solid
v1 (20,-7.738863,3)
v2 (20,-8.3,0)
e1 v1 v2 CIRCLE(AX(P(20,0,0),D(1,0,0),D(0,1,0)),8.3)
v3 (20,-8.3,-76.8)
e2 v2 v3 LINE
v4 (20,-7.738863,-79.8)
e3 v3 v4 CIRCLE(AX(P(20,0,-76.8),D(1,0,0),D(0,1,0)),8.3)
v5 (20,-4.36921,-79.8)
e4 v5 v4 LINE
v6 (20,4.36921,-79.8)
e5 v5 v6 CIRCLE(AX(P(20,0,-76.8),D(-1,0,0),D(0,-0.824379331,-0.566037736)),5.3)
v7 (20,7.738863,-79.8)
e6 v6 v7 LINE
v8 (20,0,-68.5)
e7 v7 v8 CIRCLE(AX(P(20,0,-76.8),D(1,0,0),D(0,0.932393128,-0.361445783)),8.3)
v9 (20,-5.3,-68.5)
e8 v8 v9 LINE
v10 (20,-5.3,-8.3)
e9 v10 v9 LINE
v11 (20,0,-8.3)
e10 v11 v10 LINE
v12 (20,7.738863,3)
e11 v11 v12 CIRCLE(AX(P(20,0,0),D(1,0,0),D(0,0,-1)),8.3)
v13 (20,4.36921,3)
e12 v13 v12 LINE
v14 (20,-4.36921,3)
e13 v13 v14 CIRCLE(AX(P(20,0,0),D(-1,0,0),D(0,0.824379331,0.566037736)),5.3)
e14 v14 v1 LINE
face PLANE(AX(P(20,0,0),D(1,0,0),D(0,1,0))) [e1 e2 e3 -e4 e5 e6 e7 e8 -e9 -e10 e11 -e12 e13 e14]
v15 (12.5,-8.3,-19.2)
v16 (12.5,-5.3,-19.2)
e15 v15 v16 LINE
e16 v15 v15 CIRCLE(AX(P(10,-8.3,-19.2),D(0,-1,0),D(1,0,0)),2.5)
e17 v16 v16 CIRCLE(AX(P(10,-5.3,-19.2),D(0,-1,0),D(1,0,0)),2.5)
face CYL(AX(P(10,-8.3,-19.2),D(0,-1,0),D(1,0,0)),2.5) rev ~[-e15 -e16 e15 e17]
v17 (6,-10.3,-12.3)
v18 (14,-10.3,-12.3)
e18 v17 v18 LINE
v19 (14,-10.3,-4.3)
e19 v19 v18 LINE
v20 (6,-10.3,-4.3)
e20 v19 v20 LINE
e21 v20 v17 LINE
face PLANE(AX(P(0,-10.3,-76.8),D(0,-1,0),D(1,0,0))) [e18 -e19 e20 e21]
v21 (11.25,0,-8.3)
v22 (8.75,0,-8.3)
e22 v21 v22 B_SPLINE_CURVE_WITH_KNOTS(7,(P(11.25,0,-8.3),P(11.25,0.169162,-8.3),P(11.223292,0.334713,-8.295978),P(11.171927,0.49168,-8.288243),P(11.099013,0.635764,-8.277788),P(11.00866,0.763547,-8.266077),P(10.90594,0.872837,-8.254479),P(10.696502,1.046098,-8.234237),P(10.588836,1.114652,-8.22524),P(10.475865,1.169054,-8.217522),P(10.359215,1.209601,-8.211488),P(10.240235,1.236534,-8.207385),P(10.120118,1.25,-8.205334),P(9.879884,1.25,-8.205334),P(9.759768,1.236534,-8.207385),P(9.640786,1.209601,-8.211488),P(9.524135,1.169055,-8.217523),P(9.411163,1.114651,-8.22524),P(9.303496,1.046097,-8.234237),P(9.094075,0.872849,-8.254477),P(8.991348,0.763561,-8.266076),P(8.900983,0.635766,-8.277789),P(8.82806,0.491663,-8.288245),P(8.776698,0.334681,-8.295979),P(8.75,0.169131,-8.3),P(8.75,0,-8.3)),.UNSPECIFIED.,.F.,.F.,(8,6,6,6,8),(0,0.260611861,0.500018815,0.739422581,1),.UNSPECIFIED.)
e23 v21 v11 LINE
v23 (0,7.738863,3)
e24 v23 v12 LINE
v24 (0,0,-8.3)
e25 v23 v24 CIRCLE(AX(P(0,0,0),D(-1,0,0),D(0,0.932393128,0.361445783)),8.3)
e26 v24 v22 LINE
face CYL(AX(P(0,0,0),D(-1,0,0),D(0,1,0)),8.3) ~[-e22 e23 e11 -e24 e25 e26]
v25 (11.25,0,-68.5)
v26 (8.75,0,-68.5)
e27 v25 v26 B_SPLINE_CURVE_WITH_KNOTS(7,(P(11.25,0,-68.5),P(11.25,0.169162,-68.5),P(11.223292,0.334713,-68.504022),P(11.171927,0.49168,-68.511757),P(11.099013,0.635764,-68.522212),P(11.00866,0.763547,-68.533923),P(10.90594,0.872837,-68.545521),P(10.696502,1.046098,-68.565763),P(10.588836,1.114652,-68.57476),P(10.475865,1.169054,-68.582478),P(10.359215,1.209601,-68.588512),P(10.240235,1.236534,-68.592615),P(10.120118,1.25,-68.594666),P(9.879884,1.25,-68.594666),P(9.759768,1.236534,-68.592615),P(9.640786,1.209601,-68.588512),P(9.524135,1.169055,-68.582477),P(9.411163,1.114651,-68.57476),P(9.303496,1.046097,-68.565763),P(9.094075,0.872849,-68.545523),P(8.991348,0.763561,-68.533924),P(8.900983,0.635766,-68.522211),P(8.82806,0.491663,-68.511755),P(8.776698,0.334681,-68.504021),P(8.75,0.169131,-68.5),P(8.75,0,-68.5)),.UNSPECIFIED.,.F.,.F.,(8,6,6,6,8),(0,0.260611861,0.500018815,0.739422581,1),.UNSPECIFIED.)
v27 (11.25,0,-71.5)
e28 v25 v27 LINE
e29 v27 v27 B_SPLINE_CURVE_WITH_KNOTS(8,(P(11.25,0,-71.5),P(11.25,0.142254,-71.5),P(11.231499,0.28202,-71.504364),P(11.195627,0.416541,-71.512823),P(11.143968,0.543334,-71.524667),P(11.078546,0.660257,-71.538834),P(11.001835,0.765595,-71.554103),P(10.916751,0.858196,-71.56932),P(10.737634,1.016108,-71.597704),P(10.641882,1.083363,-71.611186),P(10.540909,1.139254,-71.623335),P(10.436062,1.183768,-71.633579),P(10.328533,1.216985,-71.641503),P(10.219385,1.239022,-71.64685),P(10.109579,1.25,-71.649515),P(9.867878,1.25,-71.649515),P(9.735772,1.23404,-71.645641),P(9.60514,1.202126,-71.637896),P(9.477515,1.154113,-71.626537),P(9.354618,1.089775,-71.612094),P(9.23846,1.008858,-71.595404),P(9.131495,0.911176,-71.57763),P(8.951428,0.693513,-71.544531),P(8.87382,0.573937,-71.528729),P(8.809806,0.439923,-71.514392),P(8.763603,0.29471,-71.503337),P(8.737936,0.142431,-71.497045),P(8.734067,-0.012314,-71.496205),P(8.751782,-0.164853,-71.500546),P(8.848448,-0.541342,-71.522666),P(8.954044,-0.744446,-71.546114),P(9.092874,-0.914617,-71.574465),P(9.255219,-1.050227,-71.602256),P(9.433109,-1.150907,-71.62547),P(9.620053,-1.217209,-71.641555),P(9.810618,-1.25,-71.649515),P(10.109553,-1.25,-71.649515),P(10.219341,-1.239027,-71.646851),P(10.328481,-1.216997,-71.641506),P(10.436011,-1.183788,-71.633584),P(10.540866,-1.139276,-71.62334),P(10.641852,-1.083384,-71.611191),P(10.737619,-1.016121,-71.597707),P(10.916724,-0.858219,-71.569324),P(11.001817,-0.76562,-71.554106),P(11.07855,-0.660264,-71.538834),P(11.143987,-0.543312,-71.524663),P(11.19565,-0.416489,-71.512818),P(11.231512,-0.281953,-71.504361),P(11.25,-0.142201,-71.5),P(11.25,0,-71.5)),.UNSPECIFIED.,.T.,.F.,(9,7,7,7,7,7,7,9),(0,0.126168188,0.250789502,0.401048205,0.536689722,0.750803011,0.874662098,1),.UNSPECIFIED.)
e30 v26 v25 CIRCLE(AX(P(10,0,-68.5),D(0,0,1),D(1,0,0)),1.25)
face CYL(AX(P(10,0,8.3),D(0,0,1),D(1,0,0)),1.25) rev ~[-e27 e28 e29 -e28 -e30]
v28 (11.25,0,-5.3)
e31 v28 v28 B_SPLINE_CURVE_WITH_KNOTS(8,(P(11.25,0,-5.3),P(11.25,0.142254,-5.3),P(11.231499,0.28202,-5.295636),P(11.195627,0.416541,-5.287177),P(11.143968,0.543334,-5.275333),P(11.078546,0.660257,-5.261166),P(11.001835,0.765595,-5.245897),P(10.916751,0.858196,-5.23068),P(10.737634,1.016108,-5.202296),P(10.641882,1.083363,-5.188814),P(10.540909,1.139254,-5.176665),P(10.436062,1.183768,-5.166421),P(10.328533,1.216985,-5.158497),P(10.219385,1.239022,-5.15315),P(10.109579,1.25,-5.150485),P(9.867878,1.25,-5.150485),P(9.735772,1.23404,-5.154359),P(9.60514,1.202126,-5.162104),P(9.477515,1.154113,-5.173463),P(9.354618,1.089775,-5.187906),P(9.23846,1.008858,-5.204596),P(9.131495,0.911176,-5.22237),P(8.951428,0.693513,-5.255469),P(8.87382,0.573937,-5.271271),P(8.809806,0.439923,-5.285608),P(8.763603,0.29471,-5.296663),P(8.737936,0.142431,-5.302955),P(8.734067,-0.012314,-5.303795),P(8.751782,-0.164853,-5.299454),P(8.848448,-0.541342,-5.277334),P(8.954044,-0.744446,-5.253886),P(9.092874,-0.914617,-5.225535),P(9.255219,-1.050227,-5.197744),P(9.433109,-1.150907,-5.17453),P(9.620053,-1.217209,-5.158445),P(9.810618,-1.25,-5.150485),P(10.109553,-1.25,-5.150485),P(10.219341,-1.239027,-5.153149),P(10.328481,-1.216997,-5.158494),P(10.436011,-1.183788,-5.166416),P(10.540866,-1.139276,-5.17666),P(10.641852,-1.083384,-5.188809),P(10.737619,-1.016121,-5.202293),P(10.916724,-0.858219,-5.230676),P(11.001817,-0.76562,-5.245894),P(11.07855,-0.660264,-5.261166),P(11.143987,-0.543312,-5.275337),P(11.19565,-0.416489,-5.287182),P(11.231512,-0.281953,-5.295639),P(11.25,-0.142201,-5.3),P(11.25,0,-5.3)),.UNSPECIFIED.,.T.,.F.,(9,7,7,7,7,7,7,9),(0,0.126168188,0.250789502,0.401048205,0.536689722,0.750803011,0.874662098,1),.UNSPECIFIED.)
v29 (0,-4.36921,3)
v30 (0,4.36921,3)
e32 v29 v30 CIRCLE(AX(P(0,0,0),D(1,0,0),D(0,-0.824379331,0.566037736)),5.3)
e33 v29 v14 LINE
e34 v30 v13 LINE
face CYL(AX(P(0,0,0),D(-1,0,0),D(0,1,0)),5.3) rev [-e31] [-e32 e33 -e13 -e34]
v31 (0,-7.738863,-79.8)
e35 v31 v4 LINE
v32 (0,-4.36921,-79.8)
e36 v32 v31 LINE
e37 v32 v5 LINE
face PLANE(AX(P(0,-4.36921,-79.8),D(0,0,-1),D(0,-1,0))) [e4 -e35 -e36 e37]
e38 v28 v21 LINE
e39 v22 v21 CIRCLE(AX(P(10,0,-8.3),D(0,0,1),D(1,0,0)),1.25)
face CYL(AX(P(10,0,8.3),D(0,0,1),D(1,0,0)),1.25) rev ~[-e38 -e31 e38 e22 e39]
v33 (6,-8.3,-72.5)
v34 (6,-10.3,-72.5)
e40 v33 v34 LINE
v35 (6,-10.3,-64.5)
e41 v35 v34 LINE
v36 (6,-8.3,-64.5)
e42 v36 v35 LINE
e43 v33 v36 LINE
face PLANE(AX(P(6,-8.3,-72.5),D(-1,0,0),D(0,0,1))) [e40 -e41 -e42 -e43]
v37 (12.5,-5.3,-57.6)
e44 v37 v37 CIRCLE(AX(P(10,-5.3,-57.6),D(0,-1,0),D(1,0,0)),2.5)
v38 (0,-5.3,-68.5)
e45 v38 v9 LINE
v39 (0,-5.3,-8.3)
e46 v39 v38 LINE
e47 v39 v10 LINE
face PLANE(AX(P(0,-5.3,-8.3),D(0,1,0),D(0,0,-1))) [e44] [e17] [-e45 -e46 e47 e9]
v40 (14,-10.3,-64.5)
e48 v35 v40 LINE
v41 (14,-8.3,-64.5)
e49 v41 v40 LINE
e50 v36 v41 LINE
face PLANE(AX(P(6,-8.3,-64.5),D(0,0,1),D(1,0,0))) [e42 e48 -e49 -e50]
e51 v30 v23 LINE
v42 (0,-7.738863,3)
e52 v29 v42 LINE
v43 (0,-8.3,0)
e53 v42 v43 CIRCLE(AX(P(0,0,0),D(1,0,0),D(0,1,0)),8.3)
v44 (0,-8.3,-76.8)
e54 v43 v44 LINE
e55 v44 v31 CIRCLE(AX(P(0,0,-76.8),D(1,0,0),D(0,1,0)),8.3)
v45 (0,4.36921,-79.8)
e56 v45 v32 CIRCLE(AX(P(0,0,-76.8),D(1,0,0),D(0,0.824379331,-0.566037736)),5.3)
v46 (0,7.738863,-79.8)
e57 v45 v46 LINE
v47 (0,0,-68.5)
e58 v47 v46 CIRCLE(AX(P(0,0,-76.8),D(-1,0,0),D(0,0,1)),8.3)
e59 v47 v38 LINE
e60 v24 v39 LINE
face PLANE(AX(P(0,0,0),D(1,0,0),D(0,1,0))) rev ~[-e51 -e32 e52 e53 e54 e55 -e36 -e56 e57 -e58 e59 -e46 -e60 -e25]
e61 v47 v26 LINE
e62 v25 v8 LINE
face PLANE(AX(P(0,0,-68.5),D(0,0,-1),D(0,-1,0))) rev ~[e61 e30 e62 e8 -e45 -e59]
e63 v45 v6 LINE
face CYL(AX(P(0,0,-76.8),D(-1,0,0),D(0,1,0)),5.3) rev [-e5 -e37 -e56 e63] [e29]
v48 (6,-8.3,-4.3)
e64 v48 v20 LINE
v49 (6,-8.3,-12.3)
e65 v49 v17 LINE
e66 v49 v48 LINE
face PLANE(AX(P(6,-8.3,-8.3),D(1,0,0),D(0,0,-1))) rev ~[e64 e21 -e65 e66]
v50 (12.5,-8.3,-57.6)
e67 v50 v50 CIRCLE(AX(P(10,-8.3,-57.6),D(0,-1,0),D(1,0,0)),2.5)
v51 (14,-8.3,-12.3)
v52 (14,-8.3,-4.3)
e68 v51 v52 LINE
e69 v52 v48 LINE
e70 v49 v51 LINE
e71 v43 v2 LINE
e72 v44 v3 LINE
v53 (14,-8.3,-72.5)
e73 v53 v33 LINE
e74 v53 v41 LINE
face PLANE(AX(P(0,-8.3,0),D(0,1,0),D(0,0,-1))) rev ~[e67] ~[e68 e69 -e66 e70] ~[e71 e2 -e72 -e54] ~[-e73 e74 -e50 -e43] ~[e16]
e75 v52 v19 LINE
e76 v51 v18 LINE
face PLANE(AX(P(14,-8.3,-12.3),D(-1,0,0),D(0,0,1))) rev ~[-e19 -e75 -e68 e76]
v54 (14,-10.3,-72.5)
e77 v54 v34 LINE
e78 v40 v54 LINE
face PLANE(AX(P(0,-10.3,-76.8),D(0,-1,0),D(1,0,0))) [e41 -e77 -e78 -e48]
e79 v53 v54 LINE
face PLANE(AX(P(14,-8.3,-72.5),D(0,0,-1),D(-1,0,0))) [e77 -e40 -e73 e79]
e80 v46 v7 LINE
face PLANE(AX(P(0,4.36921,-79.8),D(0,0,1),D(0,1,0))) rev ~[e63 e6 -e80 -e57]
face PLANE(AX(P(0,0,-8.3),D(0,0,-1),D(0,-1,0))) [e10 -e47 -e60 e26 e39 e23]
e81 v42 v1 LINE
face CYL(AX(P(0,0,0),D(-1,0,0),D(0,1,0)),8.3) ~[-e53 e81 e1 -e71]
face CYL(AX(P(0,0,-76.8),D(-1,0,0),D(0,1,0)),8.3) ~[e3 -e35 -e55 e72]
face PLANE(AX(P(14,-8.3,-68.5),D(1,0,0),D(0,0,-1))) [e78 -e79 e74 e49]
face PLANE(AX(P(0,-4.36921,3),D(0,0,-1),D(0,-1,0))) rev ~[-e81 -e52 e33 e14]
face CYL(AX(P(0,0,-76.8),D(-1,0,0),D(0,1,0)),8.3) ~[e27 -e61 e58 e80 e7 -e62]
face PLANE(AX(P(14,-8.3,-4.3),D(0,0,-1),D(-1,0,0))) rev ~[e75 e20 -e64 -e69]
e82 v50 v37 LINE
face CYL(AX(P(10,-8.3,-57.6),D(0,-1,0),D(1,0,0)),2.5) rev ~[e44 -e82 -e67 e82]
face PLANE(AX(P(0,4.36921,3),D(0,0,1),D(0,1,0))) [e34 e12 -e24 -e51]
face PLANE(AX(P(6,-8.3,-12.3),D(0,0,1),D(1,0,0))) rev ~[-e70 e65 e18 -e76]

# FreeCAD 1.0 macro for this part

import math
import FreeCAD as App
import Part
import Sketcher
from FreeCAD import Vector
Q = App.Units.Quantity

doc = App.newDocument("Part")
body = doc.addObject("PartDesign::Body", "Body")

# Sketch on YZ plane
sketch1 = body.newObject("Sketcher::SketchObject", "Sketch")
sketch1.AttachmentSupport = (doc.getObject("YZ_Plane"), [""])
sketch1.MapMode = "FlatFace"
sketch1.addGeometry(Part.ArcOfCircle(Part.Circle(Vector(0, 0, 0), Vector(0, 0, 1), 8.3), math.radians(159), math.radians(180)), False)
sketch1.addGeometry(Part.LineSegment(Vector(-8.3, 0, 0), Vector(-8.3, -76.8, 0)), False)
sketch1.addGeometry(Part.ArcOfCircle(Part.Circle(Vector(0, -76.8, 0), Vector(0, 0, 1), 8.3), math.radians(180), math.radians(201)), False)
sketch1.addGeometry(Part.LineSegment(Vector(-7.7, -79.8, 0), Vector(-4.4, -79.8, 0)), False)
sketch1.addGeometry(Part.ArcOfCircle(Part.Circle(Vector(0, -76.8, 0), Vector(0, 0, 1), 5.3), math.radians(-34), math.radians(214)), False)
sketch1.addGeometry(Part.LineSegment(Vector(4.4, -79.8, 0), Vector(7.7, -79.8, 0)), False)
sketch1.addGeometry(Part.ArcOfCircle(Part.Circle(Vector(0, -76.8, 0), Vector(0, 0, 1), 8.3), math.radians(-21), math.radians(90)), False)
sketch1.addGeometry(Part.LineSegment(Vector(0, -68.5, 0), Vector(-5.3, -68.5, 0)), False)
sketch1.addGeometry(Part.LineSegment(Vector(-5.3, -68.5, 0), Vector(-5.3, -8.3, 0)), False)
sketch1.addGeometry(Part.LineSegment(Vector(-5.3, -8.3, 0), Vector(0, -8.3, 0)), False)
sketch1.addGeometry(Part.ArcOfCircle(Part.Circle(Vector(0, 0, 0), Vector(0, 0, 1), 8.3), math.radians(-90), math.radians(21)), False)
sketch1.addGeometry(Part.LineSegment(Vector(7.7, 3, 0), Vector(4.4, 3, 0)), False)
sketch1.addGeometry(Part.ArcOfCircle(Part.Circle(Vector(0, 0, 0), Vector(0, 0, 1), 5.3), math.radians(146), math.radians(394)), False)
sketch1.addGeometry(Part.LineSegment(Vector(-4.4, 3, 0), Vector(-7.7, 3, 0)), False)
sketch1.addConstraint(Sketcher.Constraint("Tangent", 0, 2, 1, 1))
sketch1.addConstraint(Sketcher.Constraint("Tangent", 1, 2, 2, 1))
sketch1.addConstraint(Sketcher.Constraint("Coincident", 2, 2, 3, 1))
sketch1.addConstraint(Sketcher.Constraint("Coincident", 3, 2, 4, 2))
sketch1.addConstraint(Sketcher.Constraint("Coincident", 4, 1, 5, 1))
sketch1.addConstraint(Sketcher.Constraint("Coincident", 5, 2, 6, 1))
sketch1.addConstraint(Sketcher.Constraint("Tangent", 6, 2, 7, 1))
sketch1.addConstraint(Sketcher.Constraint("Coincident", 7, 2, 8, 1))
sketch1.addConstraint(Sketcher.Constraint("Coincident", 8, 2, 9, 1))
sketch1.addConstraint(Sketcher.Constraint("Tangent", 9, 2, 10, 1))
sketch1.addConstraint(Sketcher.Constraint("Coincident", 10, 2, 11, 1))
sketch1.addConstraint(Sketcher.Constraint("Coincident", 11, 2, 12, 2))
sketch1.addConstraint(Sketcher.Constraint("Coincident", 12, 1, 13, 1))
sketch1.addConstraint(Sketcher.Constraint("Coincident", 13, 2, 0, 1))
sketch1.addConstraint(Sketcher.Constraint("Vertical", 1))
sketch1.addConstraint(Sketcher.Constraint("Horizontal", 3))
sketch1.addConstraint(Sketcher.Constraint("Horizontal", 5))
sketch1.addConstraint(Sketcher.Constraint("Horizontal", 7))
sketch1.addConstraint(Sketcher.Constraint("Vertical", 8))
sketch1.addConstraint(Sketcher.Constraint("Horizontal", 9))
sketch1.addConstraint(Sketcher.Constraint("Horizontal", 11))
sketch1.addConstraint(Sketcher.Constraint("Horizontal", 13))
sketch1.addConstraint(Sketcher.Constraint("Coincident", 0, 3, -1, 1))
sketch1.addConstraint(Sketcher.Constraint("Coincident", 10, 3, -1, 1))
sketch1.addConstraint(Sketcher.Constraint("Coincident", 12, 3, -1, 1))
sketch1.addConstraint(Sketcher.Constraint("Coincident", 4, 3, 2, 3))
sketch1.addConstraint(Sketcher.Constraint("Coincident", 6, 3, 2, 3))
sketch1.addConstraint(Sketcher.Constraint("Equal", 0, 2))
sketch1.addConstraint(Sketcher.Constraint("Equal", 2, 6))
sketch1.addConstraint(Sketcher.Constraint("Equal", 6, 10))
sketch1.addConstraint(Sketcher.Constraint("Equal", 4, 12))
sketch1.addConstraint(Sketcher.Constraint("Horizontal", 3, 2, 4, 1))
sketch1.addConstraint(Sketcher.Constraint("Horizontal", 11, 2, 12, 1))
sketch1.addConstraint(Sketcher.Constraint("Vertical", 5, 2, 10, 2))
sketch1.addConstraint(Sketcher.Constraint("Radius", 0, Q("8.3 mm")))
sketch1.addConstraint(Sketcher.Constraint("Radius", 4, Q("5.3 mm")))
sketch1.addConstraint(Sketcher.Constraint("DistanceY", -1, 1, 10, 2, Q("3 mm")))
sketch1.addConstraint(Sketcher.Constraint("DistanceX", 1, 2, 7, 2, Q("3 mm")))
sketch1.addConstraint(Sketcher.Constraint("DistanceY", 1, 2, 1, 1, Q("76.8 mm")))
pad1 = body.newObject("PartDesign::Pad", "Pad")
pad1.Profile = sketch1
pad1.Length = 20

# Sketch on XY plane
sketch2 = body.newObject("Sketcher::SketchObject", "Sketch001")
sketch2.AttachmentSupport = (doc.getObject("XY_Plane"), [""])
sketch2.MapMode = "FlatFace"
sketch2.AttachmentOffset = App.Placement(Vector(0, 0, 8.3), App.Rotation())
sketch2.addGeometry(Part.Circle(Vector(10, 0, 0), Vector(0, 0, 1), 1.2), False)
sketch2.addConstraint(Sketcher.Constraint("PointOnObject", 0, 3, -1))
sketch2.addConstraint(Sketcher.Constraint("Diameter", 0, Q("2.5 mm")))
sketch2.addConstraint(Sketcher.Constraint("DistanceX", -1, 1, 0, 3, Q("10 mm")))
pocket1 = body.newObject("PartDesign::Pocket", "Pocket")
pocket1.Profile = sketch2
pocket1.Type = "ThroughAll"
pocket1.Midplane = True

# Sketch on XZ plane
sketch3 = body.newObject("Sketcher::SketchObject", "Sketch002")
sketch3.AttachmentSupport = (doc.getObject("XZ_Plane"), [""])
sketch3.MapMode = "FlatFace"
sketch3.AttachmentOffset = App.Placement(Vector(0, 0, 8.3), App.Rotation())
sketch3.addGeometry(Part.Circle(Vector(10, -57.6, 0), Vector(0, 0, 1), 2.5), False)
sketch3.addGeometry(Part.Circle(Vector(10, -19.2, 0), Vector(0, 0, 1), 2.5), False)
sketch3.addConstraint(Sketcher.Constraint("Equal", 0, 1))
sketch3.addConstraint(Sketcher.Constraint("Vertical", 0, 3, 1, 3))
sketch3.addConstraint(Sketcher.Constraint("Diameter", 0, Q("5 mm")))
sketch3.addConstraint(Sketcher.Constraint("DistanceX", -1, 1, 0, 3, Q("10 mm")))
sketch3.addConstraint(Sketcher.Constraint("DistanceY", 1, 3, -1, 1, Q("19.2 mm")))
sketch3.addConstraint(Sketcher.Constraint("DistanceY", 0, 3, 1, 3, Q("38.4 mm")))
pocket2 = body.newObject("PartDesign::Pocket", "Pocket001")
pocket2.Profile = sketch3
pocket2.Length = 20

# Sketch on XZ plane
sketch4 = body.newObject("Sketcher::SketchObject", "Sketch003")
sketch4.AttachmentSupport = (doc.getObject("XZ_Plane"), [""])
sketch4.MapMode = "FlatFace"
sketch4.AttachmentOffset = App.Placement(Vector(0, 0, 8.3), App.Rotation())
sketch4.addGeometry(Part.LineSegment(Vector(14, -12, 0), Vector(14, -4, 0)), False)
sketch4.addGeometry(Part.LineSegment(Vector(14, -4, 0), Vector(6, -4, 0)), False)
sketch4.addGeometry(Part.LineSegment(Vector(6, -4, 0), Vector(6, -12, 0)), False)
sketch4.addGeometry(Part.LineSegment(Vector(6, -12, 0), Vector(14, -12, 0)), False)
sketch4.addGeometry(Part.LineSegment(Vector(14, -72, 0), Vector(14, -64, 0)), False)
sketch4.addGeometry(Part.LineSegment(Vector(14, -64, 0), Vector(6, -64, 0)), False)
sketch4.addGeometry(Part.LineSegment(Vector(6, -64, 0), Vector(6, -72, 0)), False)
sketch4.addGeometry(Part.LineSegment(Vector(6, -72, 0), Vector(14, -72, 0)), False)
sketch4.addConstraint(Sketcher.Constraint("Coincident", 0, 2, 1, 1))
sketch4.addConstraint(Sketcher.Constraint("Coincident", 1, 2, 2, 1))
sketch4.addConstraint(Sketcher.Constraint("Coincident", 2, 2, 3, 1))
sketch4.addConstraint(Sketcher.Constraint("Coincident", 3, 2, 0, 1))
sketch4.addConstraint(Sketcher.Constraint("Coincident", 4, 2, 5, 1))
sketch4.addConstraint(Sketcher.Constraint("Coincident", 5, 2, 6, 1))
sketch4.addConstraint(Sketcher.Constraint("Coincident", 6, 2, 7, 1))
sketch4.addConstraint(Sketcher.Constraint("Coincident", 7, 2, 4, 1))
sketch4.addConstraint(Sketcher.Constraint("Vertical", 0))
sketch4.addConstraint(Sketcher.Constraint("Horizontal", 1))
sketch4.addConstraint(Sketcher.Constraint("Vertical", 2))
sketch4.addConstraint(Sketcher.Constraint("Horizontal", 3))
sketch4.addConstraint(Sketcher.Constraint("Vertical", 4))
sketch4.addConstraint(Sketcher.Constraint("Horizontal", 5))
sketch4.addConstraint(Sketcher.Constraint("Vertical", 6))
sketch4.addConstraint(Sketcher.Constraint("Horizontal", 7))
sketch4.addConstraint(Sketcher.Constraint("Vertical", 3, 2, 4, 2))
sketch4.addConstraint(Sketcher.Constraint("Vertical", 2, 2, 5, 2))
sketch4.addConstraint(Sketcher.Constraint("Equal", 7, 0))
sketch4.addConstraint(Sketcher.Constraint("Equal", 2, 4))
sketch4.addConstraint(Sketcher.Constraint("DistanceX", 1, 2, 1, 1, Q("8 mm")))
sketch4.addConstraint(Sketcher.Constraint("DistanceX", -1, 1, 0, 2, Q("14 mm")))
sketch4.addConstraint(Sketcher.Constraint("DistanceY", 0, 2, -1, 1, Q("4.3 mm")))
sketch4.addConstraint(Sketcher.Constraint("DistanceY", 4, 2, -1, 1, Q("64.5 mm")))
pad2 = body.newObject("PartDesign::Pad", "Pad001")
pad2.Profile = sketch4
pad2.Length = 2

doc.recompute()
